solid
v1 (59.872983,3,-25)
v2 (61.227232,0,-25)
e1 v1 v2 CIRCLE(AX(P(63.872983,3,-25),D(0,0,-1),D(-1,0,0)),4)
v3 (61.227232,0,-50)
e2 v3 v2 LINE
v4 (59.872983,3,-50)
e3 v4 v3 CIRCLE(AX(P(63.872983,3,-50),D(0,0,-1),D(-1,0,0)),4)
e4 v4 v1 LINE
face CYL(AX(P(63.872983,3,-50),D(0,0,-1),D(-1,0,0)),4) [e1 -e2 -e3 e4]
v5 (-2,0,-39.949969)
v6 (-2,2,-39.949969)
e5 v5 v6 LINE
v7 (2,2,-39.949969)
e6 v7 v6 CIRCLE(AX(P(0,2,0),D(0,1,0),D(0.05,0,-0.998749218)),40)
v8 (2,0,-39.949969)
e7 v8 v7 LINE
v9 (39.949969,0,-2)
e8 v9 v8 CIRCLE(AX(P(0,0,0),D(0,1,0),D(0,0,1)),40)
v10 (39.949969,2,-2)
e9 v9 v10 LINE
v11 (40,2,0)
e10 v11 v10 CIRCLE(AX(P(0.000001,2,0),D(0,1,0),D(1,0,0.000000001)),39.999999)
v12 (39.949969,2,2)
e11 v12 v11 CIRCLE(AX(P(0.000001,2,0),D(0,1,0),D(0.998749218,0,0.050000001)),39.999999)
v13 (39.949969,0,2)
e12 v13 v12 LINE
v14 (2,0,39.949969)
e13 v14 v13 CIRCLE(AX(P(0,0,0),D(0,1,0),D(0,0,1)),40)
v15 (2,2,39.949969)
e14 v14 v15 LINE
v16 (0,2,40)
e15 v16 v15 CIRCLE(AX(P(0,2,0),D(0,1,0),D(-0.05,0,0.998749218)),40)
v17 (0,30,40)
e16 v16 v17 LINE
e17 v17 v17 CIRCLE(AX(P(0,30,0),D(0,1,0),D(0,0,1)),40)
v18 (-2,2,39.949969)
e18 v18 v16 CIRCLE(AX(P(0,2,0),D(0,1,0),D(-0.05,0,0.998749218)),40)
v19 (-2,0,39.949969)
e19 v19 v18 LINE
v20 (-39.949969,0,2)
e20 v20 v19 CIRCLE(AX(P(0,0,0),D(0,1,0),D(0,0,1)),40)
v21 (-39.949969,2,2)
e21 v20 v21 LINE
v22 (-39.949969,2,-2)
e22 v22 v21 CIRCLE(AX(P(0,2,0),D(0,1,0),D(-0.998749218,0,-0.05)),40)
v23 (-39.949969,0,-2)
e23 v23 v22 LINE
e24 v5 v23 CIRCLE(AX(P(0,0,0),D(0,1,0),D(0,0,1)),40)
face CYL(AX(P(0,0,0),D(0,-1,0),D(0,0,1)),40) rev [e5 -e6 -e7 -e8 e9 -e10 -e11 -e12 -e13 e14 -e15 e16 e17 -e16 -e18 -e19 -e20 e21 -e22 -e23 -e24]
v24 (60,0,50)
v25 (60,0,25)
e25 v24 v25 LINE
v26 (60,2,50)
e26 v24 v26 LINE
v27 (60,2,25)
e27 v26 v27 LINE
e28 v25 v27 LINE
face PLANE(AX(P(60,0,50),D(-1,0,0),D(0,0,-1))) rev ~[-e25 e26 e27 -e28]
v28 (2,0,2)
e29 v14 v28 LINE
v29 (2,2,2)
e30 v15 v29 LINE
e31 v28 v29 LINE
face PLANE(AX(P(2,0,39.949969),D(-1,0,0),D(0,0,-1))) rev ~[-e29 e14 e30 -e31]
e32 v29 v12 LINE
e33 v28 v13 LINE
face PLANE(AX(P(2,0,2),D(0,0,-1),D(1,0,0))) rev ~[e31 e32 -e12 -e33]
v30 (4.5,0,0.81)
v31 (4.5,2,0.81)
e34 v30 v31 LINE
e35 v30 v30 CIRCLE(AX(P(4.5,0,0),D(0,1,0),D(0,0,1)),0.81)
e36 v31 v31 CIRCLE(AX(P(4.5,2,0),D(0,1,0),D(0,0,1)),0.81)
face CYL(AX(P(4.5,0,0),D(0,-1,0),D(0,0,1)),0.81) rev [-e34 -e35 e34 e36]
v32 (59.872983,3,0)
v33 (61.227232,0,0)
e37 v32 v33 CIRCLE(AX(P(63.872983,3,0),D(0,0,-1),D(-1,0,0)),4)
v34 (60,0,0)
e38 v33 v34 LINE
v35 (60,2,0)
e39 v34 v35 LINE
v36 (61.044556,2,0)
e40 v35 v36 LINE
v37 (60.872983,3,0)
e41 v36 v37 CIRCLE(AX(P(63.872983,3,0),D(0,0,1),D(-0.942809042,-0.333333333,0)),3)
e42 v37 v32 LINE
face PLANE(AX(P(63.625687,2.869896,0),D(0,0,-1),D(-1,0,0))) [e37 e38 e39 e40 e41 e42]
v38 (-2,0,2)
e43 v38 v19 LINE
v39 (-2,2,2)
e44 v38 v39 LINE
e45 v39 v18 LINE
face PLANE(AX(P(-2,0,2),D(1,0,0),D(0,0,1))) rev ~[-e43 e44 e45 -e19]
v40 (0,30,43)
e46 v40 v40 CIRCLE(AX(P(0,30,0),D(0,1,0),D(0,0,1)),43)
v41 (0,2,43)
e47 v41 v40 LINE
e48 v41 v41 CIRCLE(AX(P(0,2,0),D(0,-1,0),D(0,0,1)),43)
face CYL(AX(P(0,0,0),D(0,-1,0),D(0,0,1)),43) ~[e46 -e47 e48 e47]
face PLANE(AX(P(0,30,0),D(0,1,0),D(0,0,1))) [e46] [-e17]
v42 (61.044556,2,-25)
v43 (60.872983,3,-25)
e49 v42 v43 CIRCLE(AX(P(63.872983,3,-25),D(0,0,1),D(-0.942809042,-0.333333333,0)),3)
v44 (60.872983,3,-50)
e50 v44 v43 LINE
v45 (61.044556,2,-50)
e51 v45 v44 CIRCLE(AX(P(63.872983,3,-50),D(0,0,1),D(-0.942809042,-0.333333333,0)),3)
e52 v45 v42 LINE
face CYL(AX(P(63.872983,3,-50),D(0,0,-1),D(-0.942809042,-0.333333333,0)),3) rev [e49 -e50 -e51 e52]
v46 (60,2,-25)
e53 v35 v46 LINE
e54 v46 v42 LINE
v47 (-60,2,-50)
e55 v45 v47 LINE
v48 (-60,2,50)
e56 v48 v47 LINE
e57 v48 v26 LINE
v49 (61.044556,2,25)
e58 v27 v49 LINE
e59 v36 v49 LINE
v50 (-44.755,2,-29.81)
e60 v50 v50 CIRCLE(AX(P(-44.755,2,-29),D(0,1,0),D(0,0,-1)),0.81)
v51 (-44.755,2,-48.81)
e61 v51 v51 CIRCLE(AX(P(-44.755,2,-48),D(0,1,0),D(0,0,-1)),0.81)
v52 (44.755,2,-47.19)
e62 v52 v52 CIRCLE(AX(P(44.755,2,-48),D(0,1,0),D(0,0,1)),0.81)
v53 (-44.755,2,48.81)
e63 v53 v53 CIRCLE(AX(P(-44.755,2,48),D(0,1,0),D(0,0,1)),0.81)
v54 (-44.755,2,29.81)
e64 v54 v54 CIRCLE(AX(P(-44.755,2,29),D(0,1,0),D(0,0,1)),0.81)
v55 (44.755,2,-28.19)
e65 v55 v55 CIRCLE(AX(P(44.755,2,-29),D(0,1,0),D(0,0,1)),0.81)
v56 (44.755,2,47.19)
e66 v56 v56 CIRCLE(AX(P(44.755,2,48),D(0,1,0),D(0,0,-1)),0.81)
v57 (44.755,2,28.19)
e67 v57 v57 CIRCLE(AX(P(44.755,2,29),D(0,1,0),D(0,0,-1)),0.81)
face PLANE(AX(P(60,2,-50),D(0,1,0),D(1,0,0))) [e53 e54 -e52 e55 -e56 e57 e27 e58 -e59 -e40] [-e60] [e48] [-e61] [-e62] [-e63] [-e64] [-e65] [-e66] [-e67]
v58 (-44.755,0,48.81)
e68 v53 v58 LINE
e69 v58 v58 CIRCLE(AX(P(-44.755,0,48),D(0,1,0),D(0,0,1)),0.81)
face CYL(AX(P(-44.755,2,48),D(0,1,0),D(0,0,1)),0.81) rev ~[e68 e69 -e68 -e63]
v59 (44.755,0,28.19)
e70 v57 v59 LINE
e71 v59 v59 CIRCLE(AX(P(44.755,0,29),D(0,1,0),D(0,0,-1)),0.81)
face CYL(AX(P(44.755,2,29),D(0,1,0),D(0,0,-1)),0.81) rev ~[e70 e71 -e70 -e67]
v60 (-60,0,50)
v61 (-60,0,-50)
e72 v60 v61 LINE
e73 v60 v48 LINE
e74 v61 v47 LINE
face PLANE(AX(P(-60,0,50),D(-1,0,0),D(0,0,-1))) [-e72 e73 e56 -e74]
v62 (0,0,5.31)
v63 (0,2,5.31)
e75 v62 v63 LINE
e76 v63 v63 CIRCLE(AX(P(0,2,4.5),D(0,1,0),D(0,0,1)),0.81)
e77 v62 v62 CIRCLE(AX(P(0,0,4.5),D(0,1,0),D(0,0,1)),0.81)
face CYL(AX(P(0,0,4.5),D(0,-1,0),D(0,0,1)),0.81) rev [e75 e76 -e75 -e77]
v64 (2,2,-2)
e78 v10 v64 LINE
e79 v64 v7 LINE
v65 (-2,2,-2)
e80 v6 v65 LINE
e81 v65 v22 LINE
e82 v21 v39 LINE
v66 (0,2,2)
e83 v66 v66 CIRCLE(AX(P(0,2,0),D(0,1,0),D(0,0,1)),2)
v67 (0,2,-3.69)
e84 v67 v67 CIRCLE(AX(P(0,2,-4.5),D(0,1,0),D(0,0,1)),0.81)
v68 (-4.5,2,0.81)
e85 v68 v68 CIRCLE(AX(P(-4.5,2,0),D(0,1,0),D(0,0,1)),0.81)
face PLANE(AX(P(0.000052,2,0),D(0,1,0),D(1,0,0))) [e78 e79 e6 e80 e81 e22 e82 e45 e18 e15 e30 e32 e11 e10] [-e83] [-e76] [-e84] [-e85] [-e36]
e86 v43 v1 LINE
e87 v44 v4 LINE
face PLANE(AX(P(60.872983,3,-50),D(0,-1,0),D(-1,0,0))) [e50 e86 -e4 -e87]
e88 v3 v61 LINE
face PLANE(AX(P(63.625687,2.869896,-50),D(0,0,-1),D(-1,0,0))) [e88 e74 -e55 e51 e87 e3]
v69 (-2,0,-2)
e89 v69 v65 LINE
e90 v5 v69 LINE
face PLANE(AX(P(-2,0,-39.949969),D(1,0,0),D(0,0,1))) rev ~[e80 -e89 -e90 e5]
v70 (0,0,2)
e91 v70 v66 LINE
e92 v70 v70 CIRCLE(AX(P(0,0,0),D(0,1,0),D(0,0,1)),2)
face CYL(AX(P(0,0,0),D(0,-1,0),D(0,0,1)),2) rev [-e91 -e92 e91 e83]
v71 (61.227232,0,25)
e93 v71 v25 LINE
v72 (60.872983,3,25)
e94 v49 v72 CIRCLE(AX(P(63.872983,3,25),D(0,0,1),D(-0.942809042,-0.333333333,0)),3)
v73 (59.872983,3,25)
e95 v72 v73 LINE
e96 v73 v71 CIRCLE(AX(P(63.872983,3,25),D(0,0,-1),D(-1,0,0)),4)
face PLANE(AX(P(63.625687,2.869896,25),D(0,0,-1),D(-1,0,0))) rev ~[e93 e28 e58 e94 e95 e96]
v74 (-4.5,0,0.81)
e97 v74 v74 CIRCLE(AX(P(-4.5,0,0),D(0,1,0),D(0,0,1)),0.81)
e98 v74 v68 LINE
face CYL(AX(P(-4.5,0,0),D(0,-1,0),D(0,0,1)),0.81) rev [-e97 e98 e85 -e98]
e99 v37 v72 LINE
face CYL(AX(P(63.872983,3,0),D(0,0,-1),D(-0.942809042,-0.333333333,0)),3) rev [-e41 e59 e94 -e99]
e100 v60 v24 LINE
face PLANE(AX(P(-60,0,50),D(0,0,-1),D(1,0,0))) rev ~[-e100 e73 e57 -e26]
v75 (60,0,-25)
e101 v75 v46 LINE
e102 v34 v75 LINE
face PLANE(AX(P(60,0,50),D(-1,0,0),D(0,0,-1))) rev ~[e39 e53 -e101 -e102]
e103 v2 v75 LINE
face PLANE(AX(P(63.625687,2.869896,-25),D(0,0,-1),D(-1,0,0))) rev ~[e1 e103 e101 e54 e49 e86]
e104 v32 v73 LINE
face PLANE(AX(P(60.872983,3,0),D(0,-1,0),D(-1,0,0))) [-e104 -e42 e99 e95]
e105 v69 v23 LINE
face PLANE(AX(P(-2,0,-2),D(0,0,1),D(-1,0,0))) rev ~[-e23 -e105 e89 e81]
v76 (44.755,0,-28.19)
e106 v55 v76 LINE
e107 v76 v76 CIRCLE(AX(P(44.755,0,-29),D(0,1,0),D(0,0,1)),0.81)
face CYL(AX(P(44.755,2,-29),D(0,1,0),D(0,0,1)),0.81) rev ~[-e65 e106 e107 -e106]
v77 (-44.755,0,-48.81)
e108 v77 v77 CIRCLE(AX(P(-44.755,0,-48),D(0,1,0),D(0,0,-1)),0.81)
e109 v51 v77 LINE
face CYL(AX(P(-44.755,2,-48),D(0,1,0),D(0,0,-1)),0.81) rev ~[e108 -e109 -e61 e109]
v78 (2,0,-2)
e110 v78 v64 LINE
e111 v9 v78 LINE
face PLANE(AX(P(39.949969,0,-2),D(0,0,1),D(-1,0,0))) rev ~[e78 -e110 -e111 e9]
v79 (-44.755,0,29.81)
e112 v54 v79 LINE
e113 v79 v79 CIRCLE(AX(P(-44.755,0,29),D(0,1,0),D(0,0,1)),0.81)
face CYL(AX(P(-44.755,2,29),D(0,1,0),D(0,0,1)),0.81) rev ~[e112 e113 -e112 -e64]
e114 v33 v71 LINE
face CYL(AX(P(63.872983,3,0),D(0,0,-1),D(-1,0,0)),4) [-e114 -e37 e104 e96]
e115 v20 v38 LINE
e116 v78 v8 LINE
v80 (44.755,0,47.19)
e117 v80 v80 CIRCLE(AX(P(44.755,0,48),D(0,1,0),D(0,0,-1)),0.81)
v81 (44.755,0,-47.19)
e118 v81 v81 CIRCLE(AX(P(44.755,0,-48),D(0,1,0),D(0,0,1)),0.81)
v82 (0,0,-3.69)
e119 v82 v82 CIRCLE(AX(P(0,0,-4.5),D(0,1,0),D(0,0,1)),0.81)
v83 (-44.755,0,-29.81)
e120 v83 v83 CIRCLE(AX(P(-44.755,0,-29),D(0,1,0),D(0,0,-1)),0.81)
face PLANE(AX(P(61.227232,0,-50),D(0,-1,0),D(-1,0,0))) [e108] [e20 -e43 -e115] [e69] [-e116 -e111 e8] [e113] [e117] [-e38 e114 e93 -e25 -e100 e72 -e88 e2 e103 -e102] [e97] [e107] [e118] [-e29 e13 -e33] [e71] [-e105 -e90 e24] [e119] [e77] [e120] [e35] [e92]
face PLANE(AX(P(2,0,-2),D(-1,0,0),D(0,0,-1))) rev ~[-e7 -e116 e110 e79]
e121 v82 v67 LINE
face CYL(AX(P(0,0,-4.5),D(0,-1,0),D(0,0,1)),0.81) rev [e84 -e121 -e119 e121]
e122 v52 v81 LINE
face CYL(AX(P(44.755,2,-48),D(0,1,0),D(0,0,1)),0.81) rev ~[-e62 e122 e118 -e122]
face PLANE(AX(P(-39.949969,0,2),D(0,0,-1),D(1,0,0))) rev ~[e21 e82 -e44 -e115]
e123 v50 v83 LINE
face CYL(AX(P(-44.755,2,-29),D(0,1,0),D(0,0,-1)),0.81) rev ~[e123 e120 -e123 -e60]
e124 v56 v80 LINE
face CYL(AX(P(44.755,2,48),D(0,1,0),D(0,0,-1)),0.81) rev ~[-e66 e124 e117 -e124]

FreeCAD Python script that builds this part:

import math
import FreeCAD as App
import Part
import Sketcher

doc = App.newDocument("Part")
body = doc.addObject("PartDesign::Body", "Body")

# Sketch on XZ plane
sketch1 = body.newObject("Sketcher::SketchObject", "Sketch")
sketch1.AttachmentSupport = (doc.getObject("XZ_Plane"), [""])
sketch1.MapMode = "FlatFace"
sketch1.addGeometry([
    Part.Circle(App.Vector(0, 0, 0), App.Vector(0, 0, 1), 43),
    Part.Circle(App.Vector(0, 0, 0), App.Vector(0, 0, 1), 40),
], False)
sketch1.addConstraint([
    Sketcher.Constraint("Coincident", 0, 3, -1, 1),
    Sketcher.Constraint("Coincident", 1, 3, -1, 1),
    Sketcher.Constraint("Diameter", 0, 86.0),
    Sketcher.Constraint("Diameter", 1, 80.0),
])
pad1 = body.newObject("PartDesign::Pad", "Pad")
pad1.Profile = sketch1
pad1.Length = 30
pad1.Reversed = True

# Sketch on XZ plane
sketch2 = body.newObject("Sketcher::SketchObject", "Sketch001")
sketch2.AttachmentSupport = (doc.getObject("XZ_Plane"), [""])
sketch2.MapMode = "FlatFace"
sketch2.addGeometry([
    Part.LineSegment(App.Vector(-2, -39.9, 0), App.Vector(-2, -2, 0)),  # 0
    Part.LineSegment(App.Vector(-2, -2, 0), App.Vector(-39.9, -2, 0)),  # 1
    Part.ArcOfCircle(Part.Circle(App.Vector(0, 0, 0), App.Vector(0, 0, 1), 40), math.radians(177.13), math.radians(182.87)),  # 2
    Part.LineSegment(App.Vector(-39.9, 2, 0), App.Vector(-2, 2, 0)),  # 3
    Part.LineSegment(App.Vector(-2, 2, 0), App.Vector(-2, 39.9, 0)),  # 4
    Part.ArcOfCircle(Part.Circle(App.Vector(0, 0, 0), App.Vector(0, 0, 1), 40), math.radians(87.13), math.radians(92.87)),  # 5
    Part.LineSegment(App.Vector(2, 39.9, 0), App.Vector(2, 2, 0)),  # 6
    Part.LineSegment(App.Vector(2, 2, 0), App.Vector(39.9, 2, 0)),  # 7
    Part.ArcOfCircle(Part.Circle(App.Vector(0, 0, 0), App.Vector(0, 0, 1), 40), math.radians(0), math.radians(2.87)),  # 8
    Part.ArcOfCircle(Part.Circle(App.Vector(0, 0, 0), App.Vector(0, 0, 1), 40), math.radians(-2.87), math.radians(0)),  # 9
    Part.LineSegment(App.Vector(39.9, -2, 0), App.Vector(2, -2, 0)),  # 10
    Part.LineSegment(App.Vector(2, -2, 0), App.Vector(2, -39.9, 0)),  # 11
    Part.ArcOfCircle(Part.Circle(App.Vector(0, 0, 0), App.Vector(0, 0, 1), 40), math.radians(-92.87), math.radians(-87.13)),  # 12
    Part.Circle(App.Vector(0, 4.5, 0), App.Vector(0, 0, 1), 0.8),  # 13
    Part.Circle(App.Vector(-4.5, 0, 0), App.Vector(0, 0, 1), 0.8),  # 14
    Part.Circle(App.Vector(0, 0, 0), App.Vector(0, 0, 1), 2),  # 15
    Part.Circle(App.Vector(4.5, 0, 0), App.Vector(0, 0, 1), 0.8),  # 16
    Part.Circle(App.Vector(0, -4.5, 0), App.Vector(0, 0, 1), 0.8),  # 17
], False)
sketch2.addConstraint([
    Sketcher.Constraint("Coincident", 0, 2, 1, 1),
    Sketcher.Constraint("Coincident", 1, 2, 2, 2),
    Sketcher.Constraint("Coincident", 2, 1, 3, 1),
    Sketcher.Constraint("Coincident", 3, 2, 4, 1),
    Sketcher.Constraint("Coincident", 4, 2, 5, 2),
    Sketcher.Constraint("Coincident", 5, 1, 6, 1),
    Sketcher.Constraint("Coincident", 6, 2, 7, 1),
    Sketcher.Constraint("Coincident", 7, 2, 8, 2),
    Sketcher.Constraint("Tangent", 8, 1, 9, 2),
    Sketcher.Constraint("Coincident", 9, 1, 10, 1),
    Sketcher.Constraint("Coincident", 10, 2, 11, 1),
    Sketcher.Constraint("Coincident", 11, 2, 12, 2),
    Sketcher.Constraint("Coincident", 12, 1, 0, 1),
    Sketcher.Constraint("Vertical", 0),
    Sketcher.Constraint("Horizontal", 1),
    Sketcher.Constraint("Horizontal", 3),
    Sketcher.Constraint("Vertical", 4),
    Sketcher.Constraint("Vertical", 6),
    Sketcher.Constraint("Horizontal", 7),
    Sketcher.Constraint("Horizontal", 10),
    Sketcher.Constraint("Vertical", 11),
    Sketcher.Constraint("Coincident", 2, 3, -1, 1),
    Sketcher.Constraint("Coincident", 5, 3, -1, 1),
    Sketcher.Constraint("Coincident", 8, 3, -1, 1),
    Sketcher.Constraint("Coincident", 12, 3, -1, 1),
    Sketcher.Constraint("Coincident", 15, 3, -1, 1),
    Sketcher.Constraint("Equal", 2, 5),
    Sketcher.Constraint("Equal", 5, 8),
    Sketcher.Constraint("Equal", 8, 9),
    Sketcher.Constraint("Equal", 9, 12),
    Sketcher.Constraint("Equal", 13, 14),
    Sketcher.Constraint("Equal", 14, 16),
    Sketcher.Constraint("Equal", 16, 17),
    Sketcher.Constraint("Symmetric", 14, 3, 16, 3, -1, 1),
    Sketcher.Constraint("Symmetric", 13, 3, 17, 3, -1, 1),
    Sketcher.Constraint("Symmetric", 0, 2, 6, 2, -1, 1),
    Sketcher.Constraint("Symmetric", 3, 2, 10, 2, -1, 1),
    Sketcher.Constraint("Symmetric", 3, 2, 6, 2, -2),
    Sketcher.Constraint("PointOnObject", 13, 3, -2),
    Sketcher.Constraint("PointOnObject", 14, 3, -1),
    Sketcher.Constraint("PointOnObject", 8, 1, -1),
    Sketcher.Constraint("Equal", 10, 0),
    Sketcher.Constraint("Diameter", 15, 4.0),
    Sketcher.Constraint("Radius", 2, 40.0),
    Sketcher.Constraint("Diameter", 13, 1.62),
    Sketcher.Constraint("DistanceX", 0, 2, -1, 1, 2.0),
    Sketcher.Constraint("DistanceY", -1, 1, 13, 3, 4.5),
    Sketcher.Constraint("DistanceX", 14, 3, -1, 1, 4.5),
])
pad2 = body.newObject("PartDesign::Pad", "Pad001")
pad2.Profile = sketch2
pad2.Length = 2
pad2.Reversed = True

# Sketch on XZ plane
sketch3 = body.newObject("Sketcher::SketchObject", "Sketch002")
sketch3.AttachmentSupport = (doc.getObject("XZ_Plane"), [""])
sketch3.MapMode = "FlatFace"
sketch3.addGeometry([
    Part.LineSegment(App.Vector(-60, -50, 0), App.Vector(-60, 50, 0)),  # 0
    Part.LineSegment(App.Vector(-60, 50, 0), App.Vector(60, 50, 0)),  # 1
    Part.LineSegment(App.Vector(60, 50, 0), App.Vector(60, -50, 0)),  # 2
    Part.LineSegment(App.Vector(60, -50, 0), App.Vector(-60, -50, 0)),  # 3
    Part.Circle(App.Vector(0, 0, 0), App.Vector(0, 0, 1), 43),  # 4
], False)
sketch3.addConstraint([
    Sketcher.Constraint("Coincident", 0, 2, 1, 1),
    Sketcher.Constraint("Coincident", 1, 2, 2, 1),
    Sketcher.Constraint("Coincident", 2, 2, 3, 1),
    Sketcher.Constraint("Coincident", 3, 2, 0, 1),
    Sketcher.Constraint("Vertical", 0),
    Sketcher.Constraint("Horizontal", 1),
    Sketcher.Constraint("Vertical", 2),
    Sketcher.Constraint("Horizontal", 3),
    Sketcher.Constraint("Coincident", 4, 3, -1, 1),
    Sketcher.Constraint("Symmetric", 0, 2, 2, 2, -1, 1),
    Sketcher.Constraint("Diameter", 4, 86.0),
    Sketcher.Constraint("DistanceX", 1, 1, 1, 2, 120.0),
    Sketcher.Constraint("DistanceY", 0, 1, 0, 2, 100.0),
])
pad3 = body.newObject("PartDesign::Pad", "Pad002")
pad3.Profile = sketch3
pad3.Length = 2
pad3.Reversed = True

# Sketch on XZ plane
sketch4 = body.newObject("Sketcher::SketchObject", "Sketch003")
sketch4.AttachmentSupport = (doc.getObject("XZ_Plane"), [""])
sketch4.MapMode = "FlatFace"
sketch4.AttachmentOffset = App.Placement(App.Vector(0, 0, -2), App.Rotation())
sketch4.addGeometry([
    Part.Circle(App.Vector(-44.8, 48, 0), App.Vector(0, 0, 1), 0.8),  # 0
    Part.Circle(App.Vector(-44.8, 29, 0), App.Vector(0, 0, 1), 0.8),  # 1
    Part.Circle(App.Vector(-44.8, -29, 0), App.Vector(0, 0, 1), 0.8),  # 2
    Part.Circle(App.Vector(-44.8, -48, 0), App.Vector(0, 0, 1), 0.8),  # 3
    Part.Circle(App.Vector(44.8, 48, 0), App.Vector(0, 0, 1), 0.8),  # 4
    Part.Circle(App.Vector(44.8, 29, 0), App.Vector(0, 0, 1), 0.8),  # 5
    Part.Circle(App.Vector(44.8, -29, 0), App.Vector(0, 0, 1), 0.8),  # 6
    Part.Circle(App.Vector(44.8, -48, 0), App.Vector(0, 0, 1), 0.8),  # 7
], False)
sketch4.addConstraint([
    Sketcher.Constraint("Equal", 0, 1),
    Sketcher.Constraint("Equal", 1, 2),
    Sketcher.Constraint("Equal", 2, 3),
    Sketcher.Constraint("Equal", 3, 4),
    Sketcher.Constraint("Equal", 4, 5),
    Sketcher.Constraint("Equal", 5, 6),
    Sketcher.Constraint("Equal", 6, 7),
    Sketcher.Constraint("Symmetric", 3, 3, 4, 3, -1, 1),
    Sketcher.Constraint("Symmetric", 2, 3, 5, 3, -1, 1),
    Sketcher.Constraint("Symmetric", 1, 3, 6, 3, -1, 1),
    Sketcher.Constraint("Symmetric", 0, 3, 7, 3, -1, 1),
    Sketcher.Constraint("Symmetric", 0, 3, 4, 3, -2),
    Sketcher.Constraint("Symmetric", 1, 3, 5, 3, -2),
    Sketcher.Constraint("Vertical", 0, 3, 1, 3),
    Sketcher.Constraint("Diameter", 0, 1.62),
    Sketcher.Constraint("DistanceY", -1, 1, 0, 3, 48.0),
    Sketcher.Constraint("DistanceY", -1, 1, 1, 3, 29.0),
    Sketcher.Constraint("DistanceX", 0, 3, 4, 3, 89.51),
])
pocket1 = body.newObject("PartDesign::Pocket", "Pocket")
pocket1.Profile = sketch4
pocket1.Length = 2
pocket1.Reversed = True

# Sketch on XY plane
sketch5 = body.newObject("Sketcher::SketchObject", "Sketch004")
sketch5.AttachmentSupport = (doc.getObject("XY_Plane"), [""])
sketch5.MapMode = "FlatFace"
sketch5.AttachmentOffset = App.Placement(App.Vector(0, 0, -50), App.Rotation())
sketch5.addGeometry([
    Part.LineSegment(App.Vector(60, 2, 0), App.Vector(61, 2, 0)),  # 0
    Part.ArcOfCircle(Part.Circle(App.Vector(63.9, 3, 0), App.Vector(0, 0, 1), 3), math.radians(-161), math.radians(180)),  # 1
    Part.LineSegment(App.Vector(60.9, 3, 0), App.Vector(59.9, 3, 0)),  # 2
    Part.ArcOfCircle(Part.Circle(App.Vector(63.9, 3, 0), App.Vector(0, 0, 1), 4), math.radians(-131), math.radians(180)),  # 3
    Part.LineSegment(App.Vector(61.2, 0, 0), App.Vector(60, 0, 0)),  # 4
    Part.LineSegment(App.Vector(60, 0, 0), App.Vector(60, 2, 0)),  # 5
], False)
sketch5.addConstraint([
    Sketcher.Constraint("Coincident", 0, 2, 1, 1),
    Sketcher.Constraint("Coincident", 1, 2, 2, 1),
    Sketcher.Constraint("Coincident", 2, 2, 3, 2),
    Sketcher.Constraint("Coincident", 3, 1, 4, 1),
    Sketcher.Constraint("Coincident", 4, 2, 5, 1),
    Sketcher.Constraint("Coincident", 5, 2, 0, 1),
    Sketcher.Constraint("Horizontal", 0),
    Sketcher.Constraint("Horizontal", 2),
    Sketcher.Constraint("Horizontal", 4),
    Sketcher.Constraint("Vertical", 5),
    Sketcher.Constraint("Coincident", 3, 3, 1, 3),
    Sketcher.Constraint("PointOnObject", 3, 1, -1),
    Sketcher.Constraint("Horizontal", 3, 3, 1, 2),
    Sketcher.Constraint("Radius", 1, 3.0),
    Sketcher.Constraint("Radius", 3, 4.0),
    Sketcher.Constraint("DistanceY", 5, 1, 5, 2, 2.0),
    Sketcher.Constraint("DistanceY", -1, 1, 1, 3, 3.0),
    Sketcher.Constraint("DistanceX", -1, 1, 4, 2, 60.0),
    Sketcher.Constraint("DistanceX", 0, 1, 0, 2, 1.044556),
])
pad4 = body.newObject("PartDesign::Pad", "Pad003")
pad4.Profile = sketch5
pad4.Length = 25
doc.recompute()

linearpattern = body.newObject("PartDesign::LinearPattern", "LinearPattern")
linearpattern.Originals = [pad4]
linearpattern.Direction = (doc.getObject("Z_Axis"), [""])
linearpattern.Mode = "offset"
linearpattern.Offset = 50
linearpattern.Occurrences = 2
body.Tip = linearpattern

doc.recompute()
